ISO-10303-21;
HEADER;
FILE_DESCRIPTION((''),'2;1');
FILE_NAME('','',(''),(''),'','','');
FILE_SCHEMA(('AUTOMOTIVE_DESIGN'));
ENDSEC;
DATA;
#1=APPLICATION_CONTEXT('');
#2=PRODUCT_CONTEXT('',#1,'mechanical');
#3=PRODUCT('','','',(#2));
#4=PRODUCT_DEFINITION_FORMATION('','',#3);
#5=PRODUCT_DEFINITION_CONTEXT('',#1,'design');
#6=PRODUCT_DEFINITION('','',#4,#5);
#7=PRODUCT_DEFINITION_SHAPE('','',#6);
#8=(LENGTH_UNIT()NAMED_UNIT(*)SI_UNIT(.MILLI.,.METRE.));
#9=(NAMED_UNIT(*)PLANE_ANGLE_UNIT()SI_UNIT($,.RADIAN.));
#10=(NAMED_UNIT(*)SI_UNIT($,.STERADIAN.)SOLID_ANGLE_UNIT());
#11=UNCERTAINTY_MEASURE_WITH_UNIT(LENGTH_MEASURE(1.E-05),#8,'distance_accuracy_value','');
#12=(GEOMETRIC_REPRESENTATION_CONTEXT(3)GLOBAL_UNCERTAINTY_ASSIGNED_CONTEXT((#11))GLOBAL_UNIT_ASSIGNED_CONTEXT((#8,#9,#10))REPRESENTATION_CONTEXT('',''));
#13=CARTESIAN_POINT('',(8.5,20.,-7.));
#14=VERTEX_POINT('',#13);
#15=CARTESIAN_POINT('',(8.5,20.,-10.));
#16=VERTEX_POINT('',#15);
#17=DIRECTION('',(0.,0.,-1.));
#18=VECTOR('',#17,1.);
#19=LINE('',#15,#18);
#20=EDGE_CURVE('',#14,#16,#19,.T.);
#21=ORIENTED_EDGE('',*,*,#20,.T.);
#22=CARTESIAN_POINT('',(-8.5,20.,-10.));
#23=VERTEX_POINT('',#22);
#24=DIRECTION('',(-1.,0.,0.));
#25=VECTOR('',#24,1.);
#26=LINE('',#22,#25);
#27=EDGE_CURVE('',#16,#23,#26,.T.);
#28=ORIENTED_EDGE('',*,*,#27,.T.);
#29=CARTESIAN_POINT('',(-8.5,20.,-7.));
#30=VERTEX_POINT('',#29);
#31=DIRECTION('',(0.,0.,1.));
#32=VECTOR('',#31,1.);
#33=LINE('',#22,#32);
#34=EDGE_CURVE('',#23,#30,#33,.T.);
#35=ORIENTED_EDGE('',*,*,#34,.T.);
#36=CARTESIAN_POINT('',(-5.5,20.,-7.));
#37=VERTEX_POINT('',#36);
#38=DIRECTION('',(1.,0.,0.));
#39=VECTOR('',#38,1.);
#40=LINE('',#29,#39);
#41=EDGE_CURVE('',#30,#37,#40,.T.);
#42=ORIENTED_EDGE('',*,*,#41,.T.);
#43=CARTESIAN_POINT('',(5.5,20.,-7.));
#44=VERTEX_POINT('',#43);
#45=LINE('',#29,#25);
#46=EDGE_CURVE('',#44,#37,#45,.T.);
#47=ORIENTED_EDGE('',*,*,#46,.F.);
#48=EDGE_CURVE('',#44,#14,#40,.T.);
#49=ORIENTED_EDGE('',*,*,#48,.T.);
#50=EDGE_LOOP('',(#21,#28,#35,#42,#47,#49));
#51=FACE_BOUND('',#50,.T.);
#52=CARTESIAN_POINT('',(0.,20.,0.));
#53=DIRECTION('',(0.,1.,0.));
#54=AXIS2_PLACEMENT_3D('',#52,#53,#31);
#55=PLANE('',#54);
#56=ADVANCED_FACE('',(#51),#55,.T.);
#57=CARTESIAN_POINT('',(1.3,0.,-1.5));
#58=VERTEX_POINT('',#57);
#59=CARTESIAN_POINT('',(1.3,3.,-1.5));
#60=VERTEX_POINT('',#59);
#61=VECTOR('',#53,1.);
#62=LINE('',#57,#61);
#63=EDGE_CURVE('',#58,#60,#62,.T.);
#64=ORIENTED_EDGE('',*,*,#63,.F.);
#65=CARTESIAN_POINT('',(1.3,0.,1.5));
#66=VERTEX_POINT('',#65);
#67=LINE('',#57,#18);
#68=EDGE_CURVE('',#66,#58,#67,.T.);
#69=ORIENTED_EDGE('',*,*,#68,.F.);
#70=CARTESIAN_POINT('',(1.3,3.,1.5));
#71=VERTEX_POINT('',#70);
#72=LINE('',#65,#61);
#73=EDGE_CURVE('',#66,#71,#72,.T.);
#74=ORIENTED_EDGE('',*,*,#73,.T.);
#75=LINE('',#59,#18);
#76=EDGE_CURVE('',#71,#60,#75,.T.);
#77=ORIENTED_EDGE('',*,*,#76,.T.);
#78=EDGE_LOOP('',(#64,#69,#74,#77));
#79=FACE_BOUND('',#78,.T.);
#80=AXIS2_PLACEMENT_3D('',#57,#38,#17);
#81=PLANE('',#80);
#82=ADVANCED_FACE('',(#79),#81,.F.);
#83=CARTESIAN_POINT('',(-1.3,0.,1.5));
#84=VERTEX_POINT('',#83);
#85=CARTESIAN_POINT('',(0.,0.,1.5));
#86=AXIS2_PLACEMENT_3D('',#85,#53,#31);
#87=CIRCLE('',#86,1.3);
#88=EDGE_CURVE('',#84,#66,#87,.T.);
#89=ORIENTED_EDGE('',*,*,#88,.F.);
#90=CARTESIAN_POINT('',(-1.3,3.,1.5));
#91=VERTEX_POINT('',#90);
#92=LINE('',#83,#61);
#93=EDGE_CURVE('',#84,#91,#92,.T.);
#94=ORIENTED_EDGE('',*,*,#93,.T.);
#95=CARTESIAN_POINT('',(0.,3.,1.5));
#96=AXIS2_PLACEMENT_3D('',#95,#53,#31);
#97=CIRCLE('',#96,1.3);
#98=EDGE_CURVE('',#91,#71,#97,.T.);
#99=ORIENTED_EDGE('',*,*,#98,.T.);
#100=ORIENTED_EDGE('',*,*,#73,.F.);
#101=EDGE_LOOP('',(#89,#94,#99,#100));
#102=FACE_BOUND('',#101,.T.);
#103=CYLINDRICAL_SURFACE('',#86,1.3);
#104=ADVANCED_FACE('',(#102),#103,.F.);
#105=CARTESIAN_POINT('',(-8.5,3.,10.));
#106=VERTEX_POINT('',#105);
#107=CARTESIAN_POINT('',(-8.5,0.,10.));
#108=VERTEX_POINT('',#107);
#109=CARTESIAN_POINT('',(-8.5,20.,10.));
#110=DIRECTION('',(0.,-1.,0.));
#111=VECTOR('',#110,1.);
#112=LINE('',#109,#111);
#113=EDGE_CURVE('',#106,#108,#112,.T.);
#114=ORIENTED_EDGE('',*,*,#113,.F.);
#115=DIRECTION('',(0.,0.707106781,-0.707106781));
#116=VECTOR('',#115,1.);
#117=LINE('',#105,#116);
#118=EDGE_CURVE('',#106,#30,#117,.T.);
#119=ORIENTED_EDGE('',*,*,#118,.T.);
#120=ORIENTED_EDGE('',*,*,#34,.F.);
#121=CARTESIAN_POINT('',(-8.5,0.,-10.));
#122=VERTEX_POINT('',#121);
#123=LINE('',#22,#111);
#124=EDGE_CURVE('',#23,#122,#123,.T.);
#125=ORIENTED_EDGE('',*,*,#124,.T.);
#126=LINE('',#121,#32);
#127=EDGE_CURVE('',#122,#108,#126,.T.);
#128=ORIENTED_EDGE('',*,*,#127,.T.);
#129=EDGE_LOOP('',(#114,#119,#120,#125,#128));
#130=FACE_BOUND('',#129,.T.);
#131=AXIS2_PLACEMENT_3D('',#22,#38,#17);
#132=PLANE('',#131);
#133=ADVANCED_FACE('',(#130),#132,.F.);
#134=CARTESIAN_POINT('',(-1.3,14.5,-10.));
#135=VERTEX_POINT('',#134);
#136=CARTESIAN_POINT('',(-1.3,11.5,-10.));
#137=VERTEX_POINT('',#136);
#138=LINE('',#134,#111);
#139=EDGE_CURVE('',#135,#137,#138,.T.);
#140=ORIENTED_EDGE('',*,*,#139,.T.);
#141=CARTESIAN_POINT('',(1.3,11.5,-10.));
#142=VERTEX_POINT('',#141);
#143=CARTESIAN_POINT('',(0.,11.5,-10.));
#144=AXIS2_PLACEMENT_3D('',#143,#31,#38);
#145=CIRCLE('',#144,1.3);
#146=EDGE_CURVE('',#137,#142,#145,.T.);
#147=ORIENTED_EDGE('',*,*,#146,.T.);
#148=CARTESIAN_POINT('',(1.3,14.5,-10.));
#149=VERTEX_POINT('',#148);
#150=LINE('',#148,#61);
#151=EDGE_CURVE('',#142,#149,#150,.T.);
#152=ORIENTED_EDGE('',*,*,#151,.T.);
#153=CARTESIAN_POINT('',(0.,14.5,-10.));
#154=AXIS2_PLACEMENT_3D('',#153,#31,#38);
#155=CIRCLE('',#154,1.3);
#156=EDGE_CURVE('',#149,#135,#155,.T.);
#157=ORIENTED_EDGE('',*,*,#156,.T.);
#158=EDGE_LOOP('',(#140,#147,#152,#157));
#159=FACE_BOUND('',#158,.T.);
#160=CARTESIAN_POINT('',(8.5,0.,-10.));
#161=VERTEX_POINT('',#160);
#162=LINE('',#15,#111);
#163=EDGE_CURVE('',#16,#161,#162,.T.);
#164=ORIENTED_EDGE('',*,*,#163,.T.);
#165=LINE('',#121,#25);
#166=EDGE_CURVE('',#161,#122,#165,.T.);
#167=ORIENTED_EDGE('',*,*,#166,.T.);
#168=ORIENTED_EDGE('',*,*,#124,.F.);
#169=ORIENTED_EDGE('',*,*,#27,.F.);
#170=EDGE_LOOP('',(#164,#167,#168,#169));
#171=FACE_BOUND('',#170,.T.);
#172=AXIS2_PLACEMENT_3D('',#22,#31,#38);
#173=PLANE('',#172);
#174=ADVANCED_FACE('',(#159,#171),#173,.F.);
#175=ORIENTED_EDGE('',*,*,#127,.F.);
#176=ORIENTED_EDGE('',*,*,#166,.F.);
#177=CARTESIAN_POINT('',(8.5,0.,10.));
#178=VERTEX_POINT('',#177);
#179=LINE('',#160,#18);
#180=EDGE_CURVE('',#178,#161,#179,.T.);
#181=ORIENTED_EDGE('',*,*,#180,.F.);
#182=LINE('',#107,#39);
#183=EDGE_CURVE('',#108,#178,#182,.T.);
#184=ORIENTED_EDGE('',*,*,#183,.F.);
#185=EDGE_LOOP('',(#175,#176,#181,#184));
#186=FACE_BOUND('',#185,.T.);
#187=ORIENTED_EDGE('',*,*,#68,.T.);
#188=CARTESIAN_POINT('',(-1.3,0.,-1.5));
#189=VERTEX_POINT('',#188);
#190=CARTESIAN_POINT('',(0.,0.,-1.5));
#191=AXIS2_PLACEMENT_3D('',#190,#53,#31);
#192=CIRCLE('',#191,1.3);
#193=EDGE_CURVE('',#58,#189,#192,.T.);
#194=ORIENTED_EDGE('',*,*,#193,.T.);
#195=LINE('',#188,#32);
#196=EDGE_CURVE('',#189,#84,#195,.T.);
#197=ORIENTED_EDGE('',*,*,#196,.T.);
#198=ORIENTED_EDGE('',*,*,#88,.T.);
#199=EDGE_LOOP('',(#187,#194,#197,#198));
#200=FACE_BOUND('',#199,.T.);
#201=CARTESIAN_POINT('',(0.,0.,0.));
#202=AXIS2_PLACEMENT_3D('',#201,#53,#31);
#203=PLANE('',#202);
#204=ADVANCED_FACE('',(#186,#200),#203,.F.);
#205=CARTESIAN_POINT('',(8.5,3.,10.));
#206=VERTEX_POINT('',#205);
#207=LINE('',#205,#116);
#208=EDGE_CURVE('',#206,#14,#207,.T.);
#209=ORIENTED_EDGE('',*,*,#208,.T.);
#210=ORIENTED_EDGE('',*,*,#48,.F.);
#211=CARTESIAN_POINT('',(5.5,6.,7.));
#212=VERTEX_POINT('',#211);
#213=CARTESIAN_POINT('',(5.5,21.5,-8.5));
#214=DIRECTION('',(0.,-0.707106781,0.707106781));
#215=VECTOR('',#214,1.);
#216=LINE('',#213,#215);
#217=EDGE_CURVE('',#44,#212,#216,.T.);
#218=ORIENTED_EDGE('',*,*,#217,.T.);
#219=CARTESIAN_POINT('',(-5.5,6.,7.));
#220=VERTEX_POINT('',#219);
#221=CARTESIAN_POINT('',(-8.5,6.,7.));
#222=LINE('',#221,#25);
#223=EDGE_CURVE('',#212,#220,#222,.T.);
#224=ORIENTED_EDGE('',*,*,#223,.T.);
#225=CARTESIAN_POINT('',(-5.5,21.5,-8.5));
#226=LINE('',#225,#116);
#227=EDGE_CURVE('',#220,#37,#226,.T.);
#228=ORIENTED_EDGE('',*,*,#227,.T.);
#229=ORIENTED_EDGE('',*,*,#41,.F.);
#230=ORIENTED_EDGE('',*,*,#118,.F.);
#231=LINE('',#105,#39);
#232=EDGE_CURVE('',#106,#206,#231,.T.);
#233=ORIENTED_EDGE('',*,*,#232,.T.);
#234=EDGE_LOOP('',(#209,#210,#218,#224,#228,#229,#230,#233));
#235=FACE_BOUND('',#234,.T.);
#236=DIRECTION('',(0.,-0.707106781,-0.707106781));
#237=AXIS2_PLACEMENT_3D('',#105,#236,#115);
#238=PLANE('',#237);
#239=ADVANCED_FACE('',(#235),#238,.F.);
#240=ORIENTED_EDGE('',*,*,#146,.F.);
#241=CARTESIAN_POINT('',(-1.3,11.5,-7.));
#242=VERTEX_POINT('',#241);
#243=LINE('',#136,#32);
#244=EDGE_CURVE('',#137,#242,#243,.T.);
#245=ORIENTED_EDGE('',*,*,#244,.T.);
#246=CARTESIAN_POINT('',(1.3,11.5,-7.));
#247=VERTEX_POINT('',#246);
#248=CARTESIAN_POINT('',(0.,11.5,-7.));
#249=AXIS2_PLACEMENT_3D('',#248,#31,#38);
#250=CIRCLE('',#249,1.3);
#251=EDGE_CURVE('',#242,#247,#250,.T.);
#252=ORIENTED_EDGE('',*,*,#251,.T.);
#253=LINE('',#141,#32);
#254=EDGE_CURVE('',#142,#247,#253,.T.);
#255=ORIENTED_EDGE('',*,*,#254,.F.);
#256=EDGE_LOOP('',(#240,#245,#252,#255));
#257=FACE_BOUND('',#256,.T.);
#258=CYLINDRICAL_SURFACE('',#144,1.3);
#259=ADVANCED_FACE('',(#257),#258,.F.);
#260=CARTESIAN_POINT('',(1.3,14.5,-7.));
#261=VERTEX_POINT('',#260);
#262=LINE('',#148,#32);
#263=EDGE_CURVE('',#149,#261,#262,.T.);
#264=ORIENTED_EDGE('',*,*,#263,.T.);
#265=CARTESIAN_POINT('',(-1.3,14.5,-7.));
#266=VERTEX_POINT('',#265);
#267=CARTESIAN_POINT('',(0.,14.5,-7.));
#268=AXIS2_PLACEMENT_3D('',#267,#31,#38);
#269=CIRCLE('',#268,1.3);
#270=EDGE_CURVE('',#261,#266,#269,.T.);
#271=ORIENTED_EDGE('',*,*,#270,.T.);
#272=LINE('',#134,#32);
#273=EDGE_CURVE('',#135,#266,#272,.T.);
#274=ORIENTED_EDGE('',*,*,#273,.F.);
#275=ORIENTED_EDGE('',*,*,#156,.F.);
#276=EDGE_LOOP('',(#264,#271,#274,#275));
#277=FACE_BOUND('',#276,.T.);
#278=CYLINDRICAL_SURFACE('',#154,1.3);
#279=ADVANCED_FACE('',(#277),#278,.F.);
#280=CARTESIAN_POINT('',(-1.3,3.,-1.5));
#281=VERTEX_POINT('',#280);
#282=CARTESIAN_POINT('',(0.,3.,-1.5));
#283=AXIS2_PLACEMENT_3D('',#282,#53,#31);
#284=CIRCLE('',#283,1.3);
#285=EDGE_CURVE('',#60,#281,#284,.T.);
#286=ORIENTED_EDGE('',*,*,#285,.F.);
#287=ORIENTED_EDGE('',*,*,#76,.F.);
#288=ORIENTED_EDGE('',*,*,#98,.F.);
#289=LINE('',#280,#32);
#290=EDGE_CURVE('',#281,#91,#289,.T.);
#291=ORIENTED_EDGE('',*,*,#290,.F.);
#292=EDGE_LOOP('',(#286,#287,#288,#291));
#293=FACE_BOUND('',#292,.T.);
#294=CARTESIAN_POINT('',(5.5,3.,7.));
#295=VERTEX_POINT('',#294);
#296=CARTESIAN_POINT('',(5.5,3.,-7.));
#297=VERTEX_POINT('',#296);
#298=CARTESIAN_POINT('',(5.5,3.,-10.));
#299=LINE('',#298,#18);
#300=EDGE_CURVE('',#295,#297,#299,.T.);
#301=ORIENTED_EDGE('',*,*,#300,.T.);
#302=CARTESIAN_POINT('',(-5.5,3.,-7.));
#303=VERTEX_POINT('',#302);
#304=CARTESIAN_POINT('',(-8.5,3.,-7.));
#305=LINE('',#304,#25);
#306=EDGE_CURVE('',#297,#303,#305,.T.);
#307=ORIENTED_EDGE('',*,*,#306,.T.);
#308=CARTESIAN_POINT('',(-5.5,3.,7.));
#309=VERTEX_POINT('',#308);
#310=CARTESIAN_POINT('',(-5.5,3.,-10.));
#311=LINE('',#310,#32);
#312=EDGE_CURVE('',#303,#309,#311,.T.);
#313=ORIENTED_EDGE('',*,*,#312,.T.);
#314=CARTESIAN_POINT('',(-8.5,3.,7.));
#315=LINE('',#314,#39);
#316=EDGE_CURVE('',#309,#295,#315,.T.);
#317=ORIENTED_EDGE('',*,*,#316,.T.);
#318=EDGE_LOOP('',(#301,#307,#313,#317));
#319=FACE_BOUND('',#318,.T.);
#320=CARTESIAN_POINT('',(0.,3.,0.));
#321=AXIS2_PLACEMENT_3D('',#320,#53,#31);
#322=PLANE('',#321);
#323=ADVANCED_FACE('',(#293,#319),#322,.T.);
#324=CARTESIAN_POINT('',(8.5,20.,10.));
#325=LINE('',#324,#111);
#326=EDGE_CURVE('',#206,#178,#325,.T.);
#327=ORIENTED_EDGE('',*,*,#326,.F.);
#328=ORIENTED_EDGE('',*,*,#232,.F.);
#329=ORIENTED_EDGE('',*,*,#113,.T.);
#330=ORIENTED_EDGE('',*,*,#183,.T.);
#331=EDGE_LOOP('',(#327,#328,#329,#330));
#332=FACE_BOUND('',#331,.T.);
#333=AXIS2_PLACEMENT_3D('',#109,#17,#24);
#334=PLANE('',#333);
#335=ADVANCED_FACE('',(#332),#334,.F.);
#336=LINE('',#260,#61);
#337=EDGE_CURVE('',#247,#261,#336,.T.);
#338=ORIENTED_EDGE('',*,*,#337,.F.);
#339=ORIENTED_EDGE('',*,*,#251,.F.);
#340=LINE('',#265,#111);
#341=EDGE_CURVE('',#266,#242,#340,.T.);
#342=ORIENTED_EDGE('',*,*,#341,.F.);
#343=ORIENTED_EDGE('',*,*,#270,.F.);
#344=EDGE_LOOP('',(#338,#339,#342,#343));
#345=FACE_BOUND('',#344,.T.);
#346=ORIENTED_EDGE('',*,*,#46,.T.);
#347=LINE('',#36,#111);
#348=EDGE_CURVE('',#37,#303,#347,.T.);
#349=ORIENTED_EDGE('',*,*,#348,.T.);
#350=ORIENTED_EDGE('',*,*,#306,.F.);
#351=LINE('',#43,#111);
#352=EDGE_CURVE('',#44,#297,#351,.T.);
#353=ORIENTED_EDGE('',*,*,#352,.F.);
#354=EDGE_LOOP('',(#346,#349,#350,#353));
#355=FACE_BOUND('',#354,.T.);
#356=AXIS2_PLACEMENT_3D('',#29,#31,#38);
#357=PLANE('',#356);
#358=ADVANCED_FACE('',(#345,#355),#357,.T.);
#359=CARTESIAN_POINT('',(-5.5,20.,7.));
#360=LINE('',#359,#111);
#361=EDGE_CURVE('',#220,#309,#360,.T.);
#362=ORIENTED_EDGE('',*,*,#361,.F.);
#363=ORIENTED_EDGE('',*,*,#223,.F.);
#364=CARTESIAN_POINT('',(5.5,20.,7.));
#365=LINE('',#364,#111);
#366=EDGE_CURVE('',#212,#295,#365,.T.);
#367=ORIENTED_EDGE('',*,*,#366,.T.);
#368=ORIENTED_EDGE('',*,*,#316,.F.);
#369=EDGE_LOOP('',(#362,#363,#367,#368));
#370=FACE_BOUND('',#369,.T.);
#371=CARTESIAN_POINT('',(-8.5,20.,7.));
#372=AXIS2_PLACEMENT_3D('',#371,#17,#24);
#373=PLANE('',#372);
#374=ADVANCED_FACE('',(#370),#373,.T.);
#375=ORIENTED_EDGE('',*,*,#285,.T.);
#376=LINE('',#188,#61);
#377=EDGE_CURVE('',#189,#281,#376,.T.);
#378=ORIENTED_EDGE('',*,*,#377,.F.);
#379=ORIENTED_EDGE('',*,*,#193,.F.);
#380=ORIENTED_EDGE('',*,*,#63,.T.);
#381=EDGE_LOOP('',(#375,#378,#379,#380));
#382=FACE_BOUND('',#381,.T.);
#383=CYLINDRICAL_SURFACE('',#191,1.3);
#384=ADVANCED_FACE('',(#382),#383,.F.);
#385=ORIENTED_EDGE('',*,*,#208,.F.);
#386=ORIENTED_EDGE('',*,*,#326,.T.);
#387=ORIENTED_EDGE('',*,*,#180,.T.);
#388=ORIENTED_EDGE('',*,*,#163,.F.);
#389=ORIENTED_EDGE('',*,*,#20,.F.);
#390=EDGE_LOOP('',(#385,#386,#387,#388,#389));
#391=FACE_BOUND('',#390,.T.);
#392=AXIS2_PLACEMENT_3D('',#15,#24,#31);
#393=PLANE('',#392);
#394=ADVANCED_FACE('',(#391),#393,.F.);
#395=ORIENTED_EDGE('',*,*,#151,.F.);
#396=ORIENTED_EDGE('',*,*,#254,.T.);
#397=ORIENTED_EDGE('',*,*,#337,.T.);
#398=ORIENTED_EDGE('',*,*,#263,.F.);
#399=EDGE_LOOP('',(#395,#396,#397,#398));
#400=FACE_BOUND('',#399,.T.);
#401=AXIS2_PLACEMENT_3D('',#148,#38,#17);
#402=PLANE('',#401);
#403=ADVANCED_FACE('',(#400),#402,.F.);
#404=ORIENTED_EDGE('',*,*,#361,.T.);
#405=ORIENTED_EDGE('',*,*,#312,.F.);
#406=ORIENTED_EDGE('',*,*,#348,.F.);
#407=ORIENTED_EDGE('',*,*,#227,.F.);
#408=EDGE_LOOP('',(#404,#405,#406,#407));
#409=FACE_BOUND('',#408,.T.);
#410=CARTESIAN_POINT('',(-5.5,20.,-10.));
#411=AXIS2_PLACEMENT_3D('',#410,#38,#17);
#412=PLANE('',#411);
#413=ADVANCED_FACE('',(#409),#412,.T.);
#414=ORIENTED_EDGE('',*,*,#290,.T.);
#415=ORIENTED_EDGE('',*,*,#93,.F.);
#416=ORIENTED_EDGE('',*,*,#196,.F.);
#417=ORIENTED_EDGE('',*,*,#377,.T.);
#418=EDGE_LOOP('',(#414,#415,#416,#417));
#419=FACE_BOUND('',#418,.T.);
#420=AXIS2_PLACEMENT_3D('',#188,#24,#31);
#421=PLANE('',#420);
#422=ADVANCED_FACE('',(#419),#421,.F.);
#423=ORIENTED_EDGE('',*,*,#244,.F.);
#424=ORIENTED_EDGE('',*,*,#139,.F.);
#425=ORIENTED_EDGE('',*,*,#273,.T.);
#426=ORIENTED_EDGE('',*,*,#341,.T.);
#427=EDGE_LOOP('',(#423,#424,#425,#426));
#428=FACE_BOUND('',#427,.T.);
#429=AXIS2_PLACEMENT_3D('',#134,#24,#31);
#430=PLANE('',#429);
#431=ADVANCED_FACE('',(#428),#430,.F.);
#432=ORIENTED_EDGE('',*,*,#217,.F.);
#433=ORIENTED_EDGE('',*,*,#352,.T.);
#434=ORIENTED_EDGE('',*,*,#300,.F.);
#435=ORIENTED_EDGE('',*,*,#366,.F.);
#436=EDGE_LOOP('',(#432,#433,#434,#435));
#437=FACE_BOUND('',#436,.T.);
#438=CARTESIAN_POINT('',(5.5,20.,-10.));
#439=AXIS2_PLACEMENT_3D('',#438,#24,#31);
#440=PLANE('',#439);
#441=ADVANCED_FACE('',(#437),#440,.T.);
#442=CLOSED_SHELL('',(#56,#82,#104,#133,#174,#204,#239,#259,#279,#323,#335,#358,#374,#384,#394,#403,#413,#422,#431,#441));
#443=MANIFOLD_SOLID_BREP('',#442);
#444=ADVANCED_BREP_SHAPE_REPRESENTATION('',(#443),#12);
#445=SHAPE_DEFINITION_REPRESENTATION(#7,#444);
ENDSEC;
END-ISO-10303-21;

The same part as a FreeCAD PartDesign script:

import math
import FreeCAD as App
import Part
import Sketcher


def faces_at(feature, points):
    """Names of the faces that lie closest to the given points."""
    faces = feature.Shape.Faces
    near = lambda p: min(range(len(faces)), key=lambda i: faces[i].distToShape(Part.Vertex(*p))[0])
    return sorted({f"Face{near(p) + 1}" for p in points})


def add_polygon(sketch, points):
    """Adds a closed chain of lines whose ends are joined by coincident constraints."""
    first, n = sketch.GeometryCount, len(points)
    for a, b in zip(points, points[1:] + points[:1]):
        sketch.addGeometry(Part.LineSegment(App.Vector(*a, 0), App.Vector(*b, 0)), False)
    for i in range(n):
        sketch.addConstraint(Sketcher.Constraint("Coincident", first + i, 2, first + (i + 1) % n, 1))

doc = App.newDocument("Part")
body = doc.addObject("PartDesign::Body", "Body")

# Sketch on XZ plane
sketch1 = doc.addObject("Sketcher::SketchObject", "Sketch")
body.addObject(sketch1)
sketch1.AttachmentSupport = (doc.XZ_Plane, [""])
sketch1.MapMode = "FlatFace"
add_polygon(sketch1, [(-8, -10), (-8, 10), (8, 10), (8, -10)])  # lines 0-3
sketch1.addConstraint(Sketcher.Constraint("Vertical", 0))
sketch1.addConstraint(Sketcher.Constraint("Horizontal", 1))
sketch1.addConstraint(Sketcher.Constraint("Vertical", 2))
sketch1.addConstraint(Sketcher.Constraint("Horizontal", 3))
sketch1.addConstraint(Sketcher.Constraint("Symmetric", 0, 2, 2, 2, -1, 1))
sketch1.addConstraint(Sketcher.Constraint("DistanceX", 1, 1, 1, 2, 17.0))
sketch1.addConstraint(Sketcher.Constraint("DistanceY", 0, 1, 0, 2, 20.0))
pad1 = doc.addObject("PartDesign::Pad", "Pad")
body.addObject(pad1)
pad1.Profile = sketch1
pad1.Length = 20
pad1.Reversed = True
doc.recompute()

thickness = doc.addObject("PartDesign::Thickness", "Thickness")
body.addObject(thickness)
thickness.Base = (pad1, faces_at(pad1, [(0, 20, 0)]))
thickness.Value = 3
thickness.Reversed = True
thickness.Join = "Intersection"

# Sketch on YZ plane
sketch2 = doc.addObject("Sketcher::SketchObject", "Sketch001")
body.addObject(sketch2)
sketch2.AttachmentSupport = (doc.YZ_Plane, [""])
sketch2.MapMode = "FlatFace"
sketch2.AttachmentOffset = App.Placement(App.Vector(0, 0, 8.5), App.Rotation())
add_polygon(sketch2, [(20, -7), (20, 10), (3, 10)])  # lines 0-2
sketch2.addConstraint(Sketcher.Constraint("Vertical", 0))
sketch2.addConstraint(Sketcher.Constraint("Horizontal", 1))
sketch2.addConstraint(Sketcher.Constraint("Equal", 1, 0))
sketch2.addConstraint(Sketcher.Constraint("DistanceX", 1, 2, 1, 1, 17.0))
sketch2.addConstraint(Sketcher.Constraint("DistanceX", -1, 1, 0, 2, 20.0))
sketch2.addConstraint(Sketcher.Constraint("DistanceY", -1, 1, 0, 2, 10.0))
pocket1 = doc.addObject("PartDesign::Pocket", "Pocket")
body.addObject(pocket1)
pocket1.Profile = sketch2
pocket1.Type = "ThroughAll"

# Sketch on XZ plane
sketch3 = doc.addObject("Sketcher::SketchObject", "Sketch002")
body.addObject(sketch3)
sketch3.AttachmentSupport = (doc.XZ_Plane, [""])
sketch3.MapMode = "FlatFace"
sketch3.AttachmentOffset = App.Placement(App.Vector(0, 0, -3), App.Rotation())
sketch3.addGeometry(Part.LineSegment(App.Vector(1.3, 1.5, 0), App.Vector(1.3, -1.5, 0)), False)
sketch3.addGeometry(Part.ArcOfCircle(Part.Circle(App.Vector(0, -1.5, 0), App.Vector(0, 0, 1), 1.3), math.radians(180), math.radians(360)), False)
sketch3.addGeometry(Part.LineSegment(App.Vector(-1.3, -1.5, 0), App.Vector(-1.3, 1.5, 0)), False)
sketch3.addGeometry(Part.ArcOfCircle(Part.Circle(App.Vector(0, 1.5, 0), App.Vector(0, 0, 1), 1.3), math.radians(0), math.radians(180)), False)
sketch3.addConstraint(Sketcher.Constraint("Tangent", 0, 2, 1, 2))
sketch3.addConstraint(Sketcher.Constraint("Tangent", 1, 1, 2, 1))
sketch3.addConstraint(Sketcher.Constraint("Tangent", 2, 2, 3, 2))
sketch3.addConstraint(Sketcher.Constraint("Tangent", 3, 1, 0, 1))
sketch3.addConstraint(Sketcher.Constraint("Vertical", 0))
sketch3.addConstraint(Sketcher.Constraint("Vertical", 2))
sketch3.addConstraint(Sketcher.Constraint("Symmetric", 1, 3, 3, 3, -1, 1))
sketch3.addConstraint(Sketcher.Constraint("Radius", 1, 1.3))
sketch3.addConstraint(Sketcher.Constraint("DistanceY", 0, 2, 0, 1, 3.0))
pocket2 = doc.addObject("PartDesign::Pocket", "Pocket001")
body.addObject(pocket2)
pocket2.Profile = sketch3
pocket2.Type = "ThroughAll"
pocket2.Reversed = True

# Sketch on XY plane
sketch4 = doc.addObject("Sketcher::SketchObject", "Sketch003")
body.addObject(sketch4)
sketch4.AttachmentSupport = (doc.XY_Plane, [""])
sketch4.MapMode = "FlatFace"
sketch4.AttachmentOffset = App.Placement(App.Vector(0, 0, -7), App.Rotation())
sketch4.addGeometry(Part.LineSegment(App.Vector(1.3, 11.5, 0), App.Vector(1.3, 14.5, 0)), False)
sketch4.addGeometry(Part.ArcOfCircle(Part.Circle(App.Vector(0, 14.5, 0), App.Vector(0, 0, 1), 1.3), math.radians(0), math.radians(180)), False)
sketch4.addGeometry(Part.LineSegment(App.Vector(-1.3, 14.5, 0), App.Vector(-1.3, 11.5, 0)), False)
sketch4.addGeometry(Part.ArcOfCircle(Part.Circle(App.Vector(0, 11.5, 0), App.Vector(0, 0, 1), 1.3), math.radians(180), math.radians(360)), False)
sketch4.addConstraint(Sketcher.Constraint("Tangent", 0, 2, 1, 1))
sketch4.addConstraint(Sketcher.Constraint("Tangent", 1, 2, 2, 1))
sketch4.addConstraint(Sketcher.Constraint("Tangent", 2, 2, 3, 1))
sketch4.addConstraint(Sketcher.Constraint("Tangent", 3, 2, 0, 1))
sketch4.addConstraint(Sketcher.Constraint("Vertical", 0))
sketch4.addConstraint(Sketcher.Constraint("Vertical", 2))
sketch4.addConstraint(Sketcher.Constraint("PointOnObject", 1, 3, -2))
sketch4.addConstraint(Sketcher.Constraint("Radius", 1, 1.3))
sketch4.addConstraint(Sketcher.Constraint("DistanceY", 0, 1, 0, 2, 3.0))
sketch4.addConstraint(Sketcher.Constraint("DistanceY", -1, 1, 1, 3, 14.5))
pocket3 = doc.addObject("PartDesign::Pocket", "Pocket002")
body.addObject(pocket3)
pocket3.Profile = sketch4
pocket3.Type = "ThroughAll"

doc.recompute()
